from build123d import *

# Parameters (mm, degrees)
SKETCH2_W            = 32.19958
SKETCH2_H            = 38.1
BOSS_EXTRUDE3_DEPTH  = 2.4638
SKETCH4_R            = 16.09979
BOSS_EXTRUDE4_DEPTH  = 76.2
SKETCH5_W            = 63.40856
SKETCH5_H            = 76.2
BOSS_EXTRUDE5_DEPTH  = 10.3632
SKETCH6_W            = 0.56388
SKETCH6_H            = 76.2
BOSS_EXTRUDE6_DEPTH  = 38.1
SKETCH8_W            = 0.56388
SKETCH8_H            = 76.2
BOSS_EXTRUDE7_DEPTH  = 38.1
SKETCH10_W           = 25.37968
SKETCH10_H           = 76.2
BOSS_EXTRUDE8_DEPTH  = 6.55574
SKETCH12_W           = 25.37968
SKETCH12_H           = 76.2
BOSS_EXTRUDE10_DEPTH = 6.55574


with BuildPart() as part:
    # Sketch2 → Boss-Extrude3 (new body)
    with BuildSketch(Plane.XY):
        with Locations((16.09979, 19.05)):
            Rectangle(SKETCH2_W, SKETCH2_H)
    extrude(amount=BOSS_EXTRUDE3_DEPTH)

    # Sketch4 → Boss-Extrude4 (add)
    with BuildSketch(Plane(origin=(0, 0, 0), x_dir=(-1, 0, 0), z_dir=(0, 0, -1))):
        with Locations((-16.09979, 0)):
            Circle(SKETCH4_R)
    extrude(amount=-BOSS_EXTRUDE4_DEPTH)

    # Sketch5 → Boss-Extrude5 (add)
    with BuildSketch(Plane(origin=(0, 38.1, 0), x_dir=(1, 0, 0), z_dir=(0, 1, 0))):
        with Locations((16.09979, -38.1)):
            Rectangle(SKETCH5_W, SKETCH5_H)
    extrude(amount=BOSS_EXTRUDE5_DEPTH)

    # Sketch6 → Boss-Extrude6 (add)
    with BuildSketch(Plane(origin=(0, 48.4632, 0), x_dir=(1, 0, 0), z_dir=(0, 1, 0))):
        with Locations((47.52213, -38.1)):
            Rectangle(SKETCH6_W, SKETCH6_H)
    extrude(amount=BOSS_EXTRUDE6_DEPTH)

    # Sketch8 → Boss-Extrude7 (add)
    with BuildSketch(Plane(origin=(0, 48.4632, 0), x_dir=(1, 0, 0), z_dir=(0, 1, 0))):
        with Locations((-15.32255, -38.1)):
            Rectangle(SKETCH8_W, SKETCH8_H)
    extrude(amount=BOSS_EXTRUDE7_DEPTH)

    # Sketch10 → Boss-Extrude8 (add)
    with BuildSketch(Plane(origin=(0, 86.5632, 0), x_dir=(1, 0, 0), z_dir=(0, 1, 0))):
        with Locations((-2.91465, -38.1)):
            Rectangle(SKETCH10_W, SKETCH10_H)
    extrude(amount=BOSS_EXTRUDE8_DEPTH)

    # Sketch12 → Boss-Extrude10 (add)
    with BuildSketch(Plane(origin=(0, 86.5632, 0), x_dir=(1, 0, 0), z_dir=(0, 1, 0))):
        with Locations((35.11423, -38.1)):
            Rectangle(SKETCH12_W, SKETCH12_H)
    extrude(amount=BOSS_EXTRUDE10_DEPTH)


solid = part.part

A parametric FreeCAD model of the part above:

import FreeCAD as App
import Part
import Sketcher
Q = App.Units.Quantity

doc = App.newDocument("Part")
body = doc.addObject("PartDesign::Body", "Body")

# Sketch on XY plane
sketch1 = body.newObject("Sketcher::SketchObject", "Sketch")
sketch1.AttachmentSupport = (doc.getObject("XY_Plane"), [""])
sketch1.MapMode = "FlatFace"
sketch1.addGeometry(Part.LineSegment(App.Vector(0, 38, 0), App.Vector(0, 0, 0)), False)
sketch1.addGeometry(Part.LineSegment(App.Vector(0, 0, 0), App.Vector(32, 0, 0)), False)
sketch1.addGeometry(Part.LineSegment(App.Vector(32, 0, 0), App.Vector(32, 38, 0)), False)
sketch1.addGeometry(Part.LineSegment(App.Vector(32, 38, 0), App.Vector(0, 38, 0)), False)
sketch1.addConstraint(Sketcher.Constraint("Coincident", 0, 2, 1, 1))
sketch1.addConstraint(Sketcher.Constraint("Coincident", 1, 2, 2, 1))
sketch1.addConstraint(Sketcher.Constraint("Coincident", 2, 2, 3, 1))
sketch1.addConstraint(Sketcher.Constraint("Coincident", 3, 2, 0, 1))
sketch1.addConstraint(Sketcher.Constraint("Vertical", 0))
sketch1.addConstraint(Sketcher.Constraint("Horizontal", 1))
sketch1.addConstraint(Sketcher.Constraint("Vertical", 2))
sketch1.addConstraint(Sketcher.Constraint("Horizontal", 3))
sketch1.addConstraint(Sketcher.Constraint("Coincident", 0, 2, -1, 1))
sketch1.addConstraint(Sketcher.Constraint("DistanceY", 0, 2, 0, 1, Q("1.5 in")))
sketch1.addConstraint(Sketcher.Constraint("DistanceX", 1, 1, 1, 2, Q("1.2677 in")))
pad1 = body.newObject("PartDesign::Pad", "Pad")
pad1.Profile = sketch1
pad1.Length = Q("0.097 in")

# Sketch on XY plane
sketch2 = body.newObject("Sketcher::SketchObject", "Sketch001")
sketch2.AttachmentSupport = (doc.getObject("XY_Plane"), [""])
sketch2.MapMode = "FlatFace"
sketch2.addGeometry(Part.Circle(App.Vector(16, 0, 0), App.Vector(0, 0, 1), 16), False)
sketch2.addConstraint(Sketcher.Constraint("PointOnObject", 0, 3, -1))
sketch2.addConstraint(Sketcher.Constraint("Diameter", 0, Q("1.2677 in")))
sketch2.addConstraint(Sketcher.Constraint("DistanceX", -1, 1, 0, 3, 16.09979))
pad2 = body.newObject("PartDesign::Pad", "Pad001")
pad2.Profile = sketch2
pad2.Length = Q("3 in")

# Sketch on XZ plane
sketch3 = body.newObject("Sketcher::SketchObject", "Sketch002")
sketch3.AttachmentSupport = (doc.getObject("XZ_Plane"), [""])
sketch3.MapMode = "FlatFace"
sketch3.AttachmentOffset = App.Placement(App.Vector(0, 0, -1.5 * 25.4), App.Rotation())
sketch3.addGeometry(Part.LineSegment(App.Vector(-16, 0, 0), App.Vector(-16, 76, 0)), False)
sketch3.addGeometry(Part.LineSegment(App.Vector(-16, 76, 0), App.Vector(48, 76, 0)), False)
sketch3.addGeometry(Part.LineSegment(App.Vector(48, 76, 0), App.Vector(48, 0, 0)), False)
sketch3.addGeometry(Part.LineSegment(App.Vector(48, 0, 0), App.Vector(-16, 0, 0)), False)
sketch3.addConstraint(Sketcher.Constraint("Coincident", 0, 2, 1, 1))
sketch3.addConstraint(Sketcher.Constraint("Coincident", 1, 2, 2, 1))
sketch3.addConstraint(Sketcher.Constraint("Coincident", 2, 2, 3, 1))
sketch3.addConstraint(Sketcher.Constraint("Coincident", 3, 2, 0, 1))
sketch3.addConstraint(Sketcher.Constraint("Vertical", 0))
sketch3.addConstraint(Sketcher.Constraint("Horizontal", 1))
sketch3.addConstraint(Sketcher.Constraint("Vertical", 2))
sketch3.addConstraint(Sketcher.Constraint("Horizontal", 3))
sketch3.addConstraint(Sketcher.Constraint("PointOnObject", 2, 2, -1))
sketch3.addConstraint(Sketcher.Constraint("DistanceY", 0, 1, 0, 2, Q("3 in")))
sketch3.addConstraint(Sketcher.Constraint("DistanceX", 1, 1, 1, 2, Q("2.4964 in")))
sketch3.addConstraint(Sketcher.Constraint("DistanceX", 0, 2, -1, 1, 15.60449))
pad3 = body.newObject("PartDesign::Pad", "Pad002")
pad3.Profile = sketch3
pad3.Length = Q("0.408 in")
pad3.Reversed = True

# Sketch on XZ plane
sketch4 = body.newObject("Sketcher::SketchObject", "Sketch003")
sketch4.AttachmentSupport = (doc.getObject("XZ_Plane"), [""])
sketch4.MapMode = "FlatFace"
sketch4.AttachmentOffset = App.Placement(App.Vector(0, 0, -1.908 * 25.4), App.Rotation())
sketch4.addGeometry(Part.LineSegment(App.Vector(47.2, 0, 0), App.Vector(47.2, 76.2, 0)), False)
sketch4.addGeometry(Part.LineSegment(App.Vector(47.2, 76.2, 0), App.Vector(47.8, 76.2, 0)), False)
sketch4.addGeometry(Part.LineSegment(App.Vector(47.8, 76.2, 0), App.Vector(47.8, 0, 0)), False)
sketch4.addGeometry(Part.LineSegment(App.Vector(47.8, 0, 0), App.Vector(47.2, 0, 0)), False)
sketch4.addConstraint(Sketcher.Constraint("Coincident", 0, 2, 1, 1))
sketch4.addConstraint(Sketcher.Constraint("Coincident", 1, 2, 2, 1))
sketch4.addConstraint(Sketcher.Constraint("Coincident", 2, 2, 3, 1))
sketch4.addConstraint(Sketcher.Constraint("Coincident", 3, 2, 0, 1))
sketch4.addConstraint(Sketcher.Constraint("Vertical", 0))
sketch4.addConstraint(Sketcher.Constraint("Horizontal", 1))
sketch4.addConstraint(Sketcher.Constraint("Vertical", 2))
sketch4.addConstraint(Sketcher.Constraint("Horizontal", 3))
sketch4.addConstraint(Sketcher.Constraint("PointOnObject", 2, 2, -1))
sketch4.addConstraint(Sketcher.Constraint("DistanceY", 0, 1, 0, 2, Q("3 in")))
sketch4.addConstraint(Sketcher.Constraint("DistanceX", 1, 1, 1, 2, Q("0.0222 in")))
sketch4.addConstraint(Sketcher.Constraint("DistanceX", -1, 1, 0, 2, 47.24019))
pad4 = body.newObject("PartDesign::Pad", "Pad003")
pad4.Profile = sketch4
pad4.Length = Q("1.5 in")
pad4.Reversed = True

# Sketch on XZ plane
sketch5 = body.newObject("Sketcher::SketchObject", "Sketch004")
sketch5.AttachmentSupport = (doc.getObject("XZ_Plane"), [""])
sketch5.MapMode = "FlatFace"
sketch5.AttachmentOffset = App.Placement(App.Vector(0, 0, -1.908 * 25.4), App.Rotation())
sketch5.addGeometry(Part.LineSegment(App.Vector(-15.6, 0, 0), App.Vector(-15.6, 76.2, 0)), False)
sketch5.addGeometry(Part.LineSegment(App.Vector(-15.6, 76.2, 0), App.Vector(-15, 76.2, 0)), False)
sketch5.addGeometry(Part.LineSegment(App.Vector(-15, 76.2, 0), App.Vector(-15, 0, 0)), False)
sketch5.addGeometry(Part.LineSegment(App.Vector(-15, 0, 0), App.Vector(-15.6, 0, 0)), False)
sketch5.addConstraint(Sketcher.Constraint("Coincident", 0, 2, 1, 1))
sketch5.addConstraint(Sketcher.Constraint("Coincident", 1, 2, 2, 1))
sketch5.addConstraint(Sketcher.Constraint("Coincident", 2, 2, 3, 1))
sketch5.addConstraint(Sketcher.Constraint("Coincident", 3, 2, 0, 1))
sketch5.addConstraint(Sketcher.Constraint("Vertical", 0))
sketch5.addConstraint(Sketcher.Constraint("Horizontal", 1))
sketch5.addConstraint(Sketcher.Constraint("Vertical", 2))
sketch5.addConstraint(Sketcher.Constraint("Horizontal", 3))
sketch5.addConstraint(Sketcher.Constraint("PointOnObject", 2, 2, -1))
sketch5.addConstraint(Sketcher.Constraint("DistanceY", 0, 1, 0, 2, Q("3 in")))
sketch5.addConstraint(Sketcher.Constraint("DistanceX", 1, 1, 1, 2, Q("0.0222 in")))
sketch5.addConstraint(Sketcher.Constraint("DistanceX", 0, 2, -1, 1, 15.60449))
pad5 = body.newObject("PartDesign::Pad", "Pad004")
pad5.Profile = sketch5
pad5.Length = Q("1.5 in")
pad5.Reversed = True

# Sketch on XZ plane
sketch6 = body.newObject("Sketcher::SketchObject", "Sketch005")
sketch6.AttachmentSupport = (doc.getObject("XZ_Plane"), [""])
sketch6.MapMode = "FlatFace"
sketch6.AttachmentOffset = App.Placement(App.Vector(0, 0, -3.408 * 25.4), App.Rotation())
sketch6.addGeometry(Part.LineSegment(App.Vector(-16, 0, 0), App.Vector(-16, 76, 0)), False)
sketch6.addGeometry(Part.LineSegment(App.Vector(-16, 76, 0), App.Vector(10, 76, 0)), False)
sketch6.addGeometry(Part.LineSegment(App.Vector(10, 76, 0), App.Vector(10, 0, 0)), False)
sketch6.addGeometry(Part.LineSegment(App.Vector(10, 0, 0), App.Vector(-16, 0, 0)), False)
sketch6.addConstraint(Sketcher.Constraint("Coincident", 0, 2, 1, 1))
sketch6.addConstraint(Sketcher.Constraint("Coincident", 1, 2, 2, 1))
sketch6.addConstraint(Sketcher.Constraint("Coincident", 2, 2, 3, 1))
sketch6.addConstraint(Sketcher.Constraint("Coincident", 3, 2, 0, 1))
sketch6.addConstraint(Sketcher.Constraint("Vertical", 0))
sketch6.addConstraint(Sketcher.Constraint("Horizontal", 1))
sketch6.addConstraint(Sketcher.Constraint("Vertical", 2))
sketch6.addConstraint(Sketcher.Constraint("Horizontal", 3))
sketch6.addConstraint(Sketcher.Constraint("PointOnObject", 2, 2, -1))
sketch6.addConstraint(Sketcher.Constraint("DistanceY", 0, 1, 0, 2, Q("3 in")))
sketch6.addConstraint(Sketcher.Constraint("DistanceX", 1, 1, 1, 2, Q("0.9992 in")))
sketch6.addConstraint(Sketcher.Constraint("DistanceX", 0, 2, -1, 1, 15.60449))
pad6 = body.newObject("PartDesign::Pad", "Pad005")
pad6.Profile = sketch6
pad6.Length = Q("0.2581 in")
pad6.Reversed = True

# Sketch on XZ plane
sketch7 = body.newObject("Sketcher::SketchObject", "Sketch006")
sketch7.AttachmentSupport = (doc.getObject("XZ_Plane"), [""])
sketch7.MapMode = "FlatFace"
sketch7.AttachmentOffset = App.Placement(App.Vector(0, 0, -3.408 * 25.4), App.Rotation())
sketch7.addGeometry(Part.LineSegment(App.Vector(22, 0, 0), App.Vector(22, 76, 0)), False)
sketch7.addGeometry(Part.LineSegment(App.Vector(22, 76, 0), App.Vector(48, 76, 0)), False)
sketch7.addGeometry(Part.LineSegment(App.Vector(48, 76, 0), App.Vector(48, 0, 0)), False)
sketch7.addGeometry(Part.LineSegment(App.Vector(48, 0, 0), App.Vector(22, 0, 0)), False)
sketch7.addConstraint(Sketcher.Constraint("Coincident", 0, 2, 1, 1))
sketch7.addConstraint(Sketcher.Constraint("Coincident", 1, 2, 2, 1))
sketch7.addConstraint(Sketcher.Constraint("Coincident", 2, 2, 3, 1))
sketch7.addConstraint(Sketcher.Constraint("Coincident", 3, 2, 0, 1))
sketch7.addConstraint(Sketcher.Constraint("Vertical", 0))
sketch7.addConstraint(Sketcher.Constraint("Horizontal", 1))
sketch7.addConstraint(Sketcher.Constraint("Vertical", 2))
sketch7.addConstraint(Sketcher.Constraint("Horizontal", 3))
sketch7.addConstraint(Sketcher.Constraint("PointOnObject", 2, 2, -1))
sketch7.addConstraint(Sketcher.Constraint("DistanceY", 0, 1, 0, 2, Q("3 in")))
sketch7.addConstraint(Sketcher.Constraint("DistanceX", 1, 1, 1, 2, Q("0.9992 in")))
sketch7.addConstraint(Sketcher.Constraint("DistanceX", -1, 1, 0, 2, 22.42439))
pad7 = body.newObject("PartDesign::Pad", "Pad006")
pad7.Profile = sketch7
pad7.Length = Q("0.2581 in")
pad7.Reversed = True

doc.recompute()
